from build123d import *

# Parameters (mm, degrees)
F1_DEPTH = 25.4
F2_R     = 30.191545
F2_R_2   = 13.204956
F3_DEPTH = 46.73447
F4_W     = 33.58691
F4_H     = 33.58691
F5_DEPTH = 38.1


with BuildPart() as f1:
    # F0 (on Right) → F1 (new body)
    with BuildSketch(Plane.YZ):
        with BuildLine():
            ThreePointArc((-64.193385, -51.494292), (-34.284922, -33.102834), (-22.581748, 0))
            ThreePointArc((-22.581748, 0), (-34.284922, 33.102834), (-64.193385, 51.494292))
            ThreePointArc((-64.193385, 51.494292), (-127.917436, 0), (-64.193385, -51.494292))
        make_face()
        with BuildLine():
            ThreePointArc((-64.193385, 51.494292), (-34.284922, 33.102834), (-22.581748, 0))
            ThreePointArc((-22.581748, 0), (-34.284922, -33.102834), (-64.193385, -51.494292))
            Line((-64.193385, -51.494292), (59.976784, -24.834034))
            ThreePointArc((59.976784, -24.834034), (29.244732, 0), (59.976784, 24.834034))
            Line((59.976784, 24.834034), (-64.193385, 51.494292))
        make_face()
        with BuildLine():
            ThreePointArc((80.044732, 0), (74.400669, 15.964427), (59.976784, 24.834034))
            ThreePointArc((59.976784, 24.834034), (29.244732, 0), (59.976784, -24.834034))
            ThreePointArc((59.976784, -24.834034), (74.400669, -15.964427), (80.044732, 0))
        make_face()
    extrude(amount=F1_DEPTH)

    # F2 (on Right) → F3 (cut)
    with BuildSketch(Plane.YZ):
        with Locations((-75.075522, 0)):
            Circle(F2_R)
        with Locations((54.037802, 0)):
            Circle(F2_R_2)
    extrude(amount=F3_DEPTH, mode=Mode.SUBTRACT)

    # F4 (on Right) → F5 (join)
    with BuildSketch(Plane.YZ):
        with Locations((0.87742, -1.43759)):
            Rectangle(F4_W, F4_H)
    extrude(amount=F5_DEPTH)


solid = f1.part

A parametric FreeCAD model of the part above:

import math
import FreeCAD as App
import Part
import Sketcher
Q = App.Units.Quantity

doc = App.newDocument("Part")
body = doc.addObject("PartDesign::Body", "Body")

# Sketch on YZ plane
sketch1 = doc.addObject("Sketcher::SketchObject", "Sketch")
body.addObject(sketch1)
sketch1.AttachmentSupport = (doc.YZ_Plane, [""])
sketch1.MapMode = "FlatFace"
sketch1.addGeometry(Part.ArcOfCircle(Part.Circle(App.Vector(-75.249592, 0, 0), App.Vector(0, 0, 1), 52.667844), math.radians(77.882144), math.radians(282.117856)), False)
sketch1.addGeometry(Part.LineSegment(App.Vector(-64.193385, -51.494292, 0), App.Vector(59.976784, -24.834034, 0)), False)
sketch1.addGeometry(Part.ArcOfCircle(Part.Circle(App.Vector(54.644729, 0.000002, 0), App.Vector(0, 0, 1), 25.400003), math.radians(-77.882137), math.radians(-0.000004)), False)
sketch1.addGeometry(Part.ArcOfCircle(Part.Circle(App.Vector(54.644729, -0.000002, 0), App.Vector(0, 0, 1), 25.400003), math.radians(0.000004), math.radians(77.882137)), False)
sketch1.addGeometry(Part.LineSegment(App.Vector(59.976784, 24.834034, 0), App.Vector(-64.193385, 51.494292, 0)), False)
sketch1.addConstraint(Sketcher.Constraint("Tangent", 0, 2, 1, 1))
sketch1.addConstraint(Sketcher.Constraint("Tangent", 1, 2, 2, 1))
sketch1.addConstraint(Sketcher.Constraint("Tangent", 2, 2, 3, 1))
sketch1.addConstraint(Sketcher.Constraint("Tangent", 3, 2, 4, 1))
sketch1.addConstraint(Sketcher.Constraint("Tangent", 4, 2, 0, 1))
sketch1.addConstraint(Sketcher.Constraint("Equal", 2, 3))
sketch1.addConstraint(Sketcher.Constraint("Symmetric", 1, 2, 3, 2, -1))
sketch1.addConstraint(Sketcher.Constraint("PointOnObject", 2, 2, -1))
sketch1.addConstraint(Sketcher.Constraint("Radius", 2, Q("1.0000001 in")))
sketch1.addConstraint(Sketcher.Constraint("Distance", 1, Q("5 in")))
sketch1.addConstraint(Sketcher.Constraint("Radius", 0, Q("52.667844 mm")))
sketch1.addConstraint(Sketcher.Constraint("DistanceX", 0, 3, -1, 1, Q("75.249592 mm")))
pad1 = doc.addObject("PartDesign::Pad", "Pad")
body.addObject(pad1)
pad1.Profile = sketch1
pad1.Length = Q("1 in")

# Sketch on YZ plane
sketch2 = doc.addObject("Sketcher::SketchObject", "Sketch001")
body.addObject(sketch2)
sketch2.AttachmentSupport = (doc.YZ_Plane, [""])
sketch2.MapMode = "FlatFace"
sketch2.addGeometry(Part.Circle(App.Vector(-75.075522, 0, 0), App.Vector(0, 0, 1), 30.191545), False)
sketch2.addGeometry(Part.Circle(App.Vector(54.037802, 0, 0), App.Vector(0, 0, 1), 13.204956), False)
sketch2.addConstraint(Sketcher.Constraint("PointOnObject", 0, 3, -1))
sketch2.addConstraint(Sketcher.Constraint("PointOnObject", 1, 3, -1))
sketch2.addConstraint(Sketcher.Constraint("Diameter", 0, Q("60.38309 mm")))
sketch2.addConstraint(Sketcher.Constraint("Diameter", 1, Q("26.409912 mm")))
sketch2.addConstraint(Sketcher.Constraint("DistanceX", 0, 3, -1, 1, Q("75.075522 mm")))
sketch2.addConstraint(Sketcher.Constraint("DistanceX", -1, 1, 1, 3, Q("54.037802 mm")))
pocket1 = doc.addObject("PartDesign::Pocket", "Pocket")
body.addObject(pocket1)
pocket1.Profile = sketch2
pocket1.Length = 46.73447
pocket1.Reversed = True

# Sketch on YZ plane
sketch3 = doc.addObject("Sketcher::SketchObject", "Sketch002")
body.addObject(sketch3)
sketch3.AttachmentSupport = (doc.YZ_Plane, [""])
sketch3.MapMode = "FlatFace"
sketch3.addGeometry(Part.LineSegment(App.Vector(-15.916035, 15.355865, 0), App.Vector(-15.916035, -18.231045, 0)), False)
sketch3.addGeometry(Part.LineSegment(App.Vector(-15.916035, -18.231045, 0), App.Vector(17.670875, -18.231045, 0)), False)
sketch3.addGeometry(Part.LineSegment(App.Vector(17.670875, -18.231045, 0), App.Vector(17.670875, 15.355865, 0)), False)
sketch3.addGeometry(Part.LineSegment(App.Vector(17.670875, 15.355865, 0), App.Vector(-15.916035, 15.355865, 0)), False)
sketch3.addConstraint(Sketcher.Constraint("Coincident", 0, 2, 1, 1))
sketch3.addConstraint(Sketcher.Constraint("Coincident", 1, 2, 2, 1))
sketch3.addConstraint(Sketcher.Constraint("Coincident", 2, 2, 3, 1))
sketch3.addConstraint(Sketcher.Constraint("Coincident", 3, 2, 0, 1))
sketch3.addConstraint(Sketcher.Constraint("Vertical", 0))
sketch3.addConstraint(Sketcher.Constraint("Horizontal", 1))
sketch3.addConstraint(Sketcher.Constraint("Vertical", 2))
sketch3.addConstraint(Sketcher.Constraint("Horizontal", 3))
sketch3.addConstraint(Sketcher.Constraint("Equal", 3, 0))
sketch3.addConstraint(Sketcher.Constraint("DistanceX", 1, 1, 1, 2, Q("33.58691 mm")))
sketch3.addConstraint(Sketcher.Constraint("DistanceX", 0, 2, -1, 1, Q("15.916035 mm")))
sketch3.addConstraint(Sketcher.Constraint("DistanceY", 0, 2, -1, 1, Q("18.231045 mm")))
pad2 = doc.addObject("PartDesign::Pad", "Pad001")
body.addObject(pad2)
pad2.Profile = sketch3
pad2.Length = Q("1.5 in")

doc.recompute()
